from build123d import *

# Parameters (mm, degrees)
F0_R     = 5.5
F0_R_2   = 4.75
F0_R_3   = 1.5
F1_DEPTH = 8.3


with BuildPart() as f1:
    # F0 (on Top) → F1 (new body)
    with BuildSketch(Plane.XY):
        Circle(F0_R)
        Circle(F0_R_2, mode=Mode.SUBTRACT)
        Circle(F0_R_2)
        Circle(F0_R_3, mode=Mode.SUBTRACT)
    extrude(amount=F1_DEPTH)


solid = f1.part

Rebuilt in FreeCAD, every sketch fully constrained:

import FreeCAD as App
import Part
import Sketcher
Q = App.Units.Quantity

doc = App.newDocument("Part")
body = doc.addObject("PartDesign::Body", "Body")

sketch1 = doc.addObject("Sketcher::SketchObject", "Sketch")
body.addObject(sketch1)
sketch1.AttachmentSupport = (doc.XY_Plane, [""])
sketch1.MapMode = "FlatFace"
sketch1.addGeometry([
    Part.Circle(App.Vector(0, 0, 0), App.Vector(0, 0, 1), 5.5),
    Part.Circle(App.Vector(0, 0, 0), App.Vector(0, 0, 1), 1.5),
], False)
sketch1.addConstraint([
    Sketcher.Constraint("Coincident", 0, 3, -1, 1),
    Sketcher.Constraint("Coincident", 1, 3, -1, 1),
    Sketcher.Constraint("Diameter", 0, Q("11 mm")),
    Sketcher.Constraint("Diameter", 1, Q("3 mm")),
])
pad1 = doc.addObject("PartDesign::Pad", "Pad")
body.addObject(pad1)
pad1.Profile = sketch1
pad1.Length = 8.3

doc.recompute()
